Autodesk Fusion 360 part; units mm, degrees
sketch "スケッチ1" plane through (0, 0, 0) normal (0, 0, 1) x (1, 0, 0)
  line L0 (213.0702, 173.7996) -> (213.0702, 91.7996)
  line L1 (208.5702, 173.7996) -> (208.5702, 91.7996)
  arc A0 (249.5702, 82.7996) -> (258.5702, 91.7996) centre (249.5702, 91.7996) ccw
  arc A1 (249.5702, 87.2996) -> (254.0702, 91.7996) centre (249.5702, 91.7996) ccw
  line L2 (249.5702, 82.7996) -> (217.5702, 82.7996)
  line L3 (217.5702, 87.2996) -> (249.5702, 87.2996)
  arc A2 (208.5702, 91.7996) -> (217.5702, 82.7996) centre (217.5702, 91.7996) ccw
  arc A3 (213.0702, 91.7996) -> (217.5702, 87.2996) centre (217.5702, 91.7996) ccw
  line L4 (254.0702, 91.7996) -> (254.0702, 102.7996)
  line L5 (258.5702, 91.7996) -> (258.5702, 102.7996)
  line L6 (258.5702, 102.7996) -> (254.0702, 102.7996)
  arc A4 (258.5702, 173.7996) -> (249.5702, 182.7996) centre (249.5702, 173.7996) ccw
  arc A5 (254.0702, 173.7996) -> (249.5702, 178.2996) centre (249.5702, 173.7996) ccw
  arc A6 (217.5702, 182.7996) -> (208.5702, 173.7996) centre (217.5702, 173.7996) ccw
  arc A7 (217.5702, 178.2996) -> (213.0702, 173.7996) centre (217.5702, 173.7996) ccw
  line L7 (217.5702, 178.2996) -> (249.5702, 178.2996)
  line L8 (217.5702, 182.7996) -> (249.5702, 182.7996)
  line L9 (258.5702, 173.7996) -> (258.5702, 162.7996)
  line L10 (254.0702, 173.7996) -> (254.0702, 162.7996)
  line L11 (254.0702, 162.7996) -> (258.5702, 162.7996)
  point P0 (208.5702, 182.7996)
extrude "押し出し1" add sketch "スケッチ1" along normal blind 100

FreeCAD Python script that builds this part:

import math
import FreeCAD as App
import Part
import Sketcher

V = App.Vector
Q = App.Units.Quantity

doc = App.newDocument("Part")
params = doc.addObject("Spreadsheet::Sheet", "Params")
for row, (alias, value) in enumerate([
    ("sketch1_radius", "9 mm"),
    ("sketch1_radius2", "4.5 mm"),
    ("sketch1_width", "32 mm"),
    ("sketch1_height", "82 mm"),
    ("sketch1_height2", "11 mm"),
    ("pad1_length", "100 mm"),
], start=1):
    params.set(f"A{row}", alias)
    params.set(f"B{row}", "=" + value)
    params.setAlias(f"B{row}", alias)

body = doc.addObject("PartDesign::Body", "Body")

sketch1 = body.newObject("Sketcher::SketchObject", "Sketch")
sketch1.AttachmentSupport = (doc.getObject("XY_Plane"), [""])
sketch1.MapMode = "FlatFace"
sketch1.addGeometry([
    Part.LineSegment(V(213.0702, 91.7996, 0), V(213.0702, 173.7996, 0)),
    Part.ArcOfCircle(Part.Circle(V(217.5702, 173.7996, 0), V(0, 0, 1), 4.5), math.radians(90), math.radians(180)),
    Part.LineSegment(V(217.5702, 178.2996, 0), V(249.5702, 178.2996, 0)),
    Part.ArcOfCircle(Part.Circle(V(249.5702, 173.7996, 0), V(0, 0, 1), 4.5), math.radians(0), math.radians(90)),
    Part.LineSegment(V(254.0702, 173.7996, 0), V(254.0702, 162.7996, 0)),
    Part.LineSegment(V(254.0702, 162.7996, 0), V(258.5702, 162.7996, 0)),
    Part.LineSegment(V(258.5702, 162.7996, 0), V(258.5702, 173.7996, 0)),
    Part.ArcOfCircle(Part.Circle(V(249.5702, 173.7996, 0), V(0, 0, 1), 9), math.radians(0), math.radians(90)),
    Part.LineSegment(V(249.5702, 182.7996, 0), V(217.5702, 182.7996, 0)),
    Part.ArcOfCircle(Part.Circle(V(217.5702, 173.7996, 0), V(0, 0, 1), 9), math.radians(90), math.radians(180)),
    Part.LineSegment(V(208.5702, 173.7996, 0), V(208.5702, 91.7996, 0)),
    Part.ArcOfCircle(Part.Circle(V(217.5702, 91.7996, 0), V(0, 0, 1), 9), math.radians(180), math.radians(270)),
    Part.LineSegment(V(217.5702, 82.7996, 0), V(249.5702, 82.7996, 0)),
    Part.ArcOfCircle(Part.Circle(V(249.5702, 91.7996, 0), V(0, 0, 1), 9), math.radians(-90), math.radians(0)),
    Part.LineSegment(V(258.5702, 91.7996, 0), V(258.5702, 102.7996, 0)),
    Part.LineSegment(V(258.5702, 102.7996, 0), V(254.0702, 102.7996, 0)),
    Part.LineSegment(V(254.0702, 102.7996, 0), V(254.0702, 91.7996, 0)),
    Part.ArcOfCircle(Part.Circle(V(249.5702, 91.7996, 0), V(0, 0, 1), 4.5), math.radians(-90), math.radians(0)),
    Part.LineSegment(V(249.5702, 87.2996, 0), V(217.5702, 87.2996, 0)),
    Part.ArcOfCircle(Part.Circle(V(217.5702, 91.7996, 0), V(0, 0, 1), 4.5), math.radians(180), math.radians(270)),
], False)
sketch1.addConstraint([
    Sketcher.Constraint("Tangent", 0, 2, 1, 2),
    Sketcher.Constraint("Tangent", 1, 1, 2, 1),
    Sketcher.Constraint("Tangent", 2, 2, 3, 2),
    Sketcher.Constraint("Tangent", 3, 1, 4, 1),
    Sketcher.Constraint("Coincident", 4, 2, 5, 1),
    Sketcher.Constraint("Coincident", 5, 2, 6, 1),
    Sketcher.Constraint("Tangent", 6, 2, 7, 1),
    Sketcher.Constraint("Tangent", 7, 2, 8, 1),
    Sketcher.Constraint("Tangent", 8, 2, 9, 1),
    Sketcher.Constraint("Tangent", 9, 2, 10, 1),
    Sketcher.Constraint("Tangent", 10, 2, 11, 1),
    Sketcher.Constraint("Tangent", 11, 2, 12, 1),
    Sketcher.Constraint("Tangent", 12, 2, 13, 1),
    Sketcher.Constraint("Tangent", 13, 2, 14, 1),
    Sketcher.Constraint("Coincident", 14, 2, 15, 1),
    Sketcher.Constraint("Coincident", 15, 2, 16, 1),
    Sketcher.Constraint("Tangent", 16, 2, 17, 2),
    Sketcher.Constraint("Tangent", 17, 1, 18, 1),
    Sketcher.Constraint("Tangent", 18, 2, 19, 2),
    Sketcher.Constraint("Tangent", 19, 1, 0, 1),
    Sketcher.Constraint("Vertical", 0),
    Sketcher.Constraint("Horizontal", 2),
    Sketcher.Constraint("Vertical", 4),
    Sketcher.Constraint("Horizontal", 5),
    Sketcher.Constraint("Vertical", 6),
    Sketcher.Constraint("Horizontal", 8),
    Sketcher.Constraint("Vertical", 10),
    Sketcher.Constraint("Horizontal", 12),
    Sketcher.Constraint("Vertical", 14),
    Sketcher.Constraint("Horizontal", 15),
    Sketcher.Constraint("Vertical", 16),
    Sketcher.Constraint("Horizontal", 18),
    Sketcher.Constraint("Coincident", 7, 3, 3, 3),
    Sketcher.Constraint("Coincident", 9, 3, 1, 3),
    Sketcher.Constraint("Coincident", 17, 3, 13, 3),
    Sketcher.Constraint("Coincident", 19, 3, 11, 3),
    Sketcher.Constraint("Equal", 1, 3),
    Sketcher.Constraint("Equal", 9, 11),
    Sketcher.Constraint("Equal", 11, 13),
    Sketcher.Constraint("Vertical", 7, 3, 13, 3),
    Sketcher.Constraint("Equal", 6, 14),
    Sketcher.Constraint("Radius", 7, Q("9 mm")),
    Sketcher.Constraint("Radius", 1, Q("4.5 mm")),
    Sketcher.Constraint("DistanceX", 2, 1, 2, 2, Q("32 mm")),
    Sketcher.Constraint("DistanceY", 0, 1, 0, 2, Q("82 mm")),
    Sketcher.Constraint("DistanceY", 4, 2, 4, 1, Q("11 mm")),
    Sketcher.Constraint("DistanceX", -1, 1, 1, 3, Q("217.5702 mm")),
    Sketcher.Constraint("DistanceY", -1, 1, 1, 3, Q("173.7996 mm")),
])
sketch1.setExpression("Constraints[41]", "Params.sketch1_radius")
sketch1.setExpression("Constraints[42]", "Params.sketch1_radius2")
sketch1.setExpression("Constraints[43]", "Params.sketch1_width")
sketch1.setExpression("Constraints[44]", "Params.sketch1_height")
sketch1.setExpression("Constraints[45]", "Params.sketch1_height2")
pad1 = body.newObject("PartDesign::Pad", "Pad")
pad1.Profile = sketch1
pad1.setExpression("Length", "Params.pad1_length")

doc.recompute()
